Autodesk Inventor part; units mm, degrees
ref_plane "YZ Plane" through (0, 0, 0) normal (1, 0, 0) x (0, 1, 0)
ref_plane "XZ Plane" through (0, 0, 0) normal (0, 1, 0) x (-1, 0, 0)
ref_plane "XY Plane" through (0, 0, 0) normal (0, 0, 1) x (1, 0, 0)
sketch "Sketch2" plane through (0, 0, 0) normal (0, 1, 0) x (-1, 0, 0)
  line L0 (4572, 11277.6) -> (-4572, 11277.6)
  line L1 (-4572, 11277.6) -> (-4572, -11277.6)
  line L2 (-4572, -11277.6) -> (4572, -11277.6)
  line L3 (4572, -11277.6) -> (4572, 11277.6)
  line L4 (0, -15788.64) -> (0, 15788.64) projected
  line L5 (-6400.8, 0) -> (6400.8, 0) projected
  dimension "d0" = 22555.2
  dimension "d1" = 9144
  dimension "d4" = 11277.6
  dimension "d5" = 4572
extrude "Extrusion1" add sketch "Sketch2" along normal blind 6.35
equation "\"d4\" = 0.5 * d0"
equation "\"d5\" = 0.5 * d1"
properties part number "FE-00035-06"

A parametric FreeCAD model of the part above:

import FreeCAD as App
import Part
import Sketcher

V = App.Vector
Q = App.Units.Quantity

doc = App.newDocument("Part")
body = doc.addObject("PartDesign::Body", "Body")

sketch1 = body.newObject("Sketcher::SketchObject", "Sketch")
sketch1.AttachmentSupport = (doc.getObject("XZ_Plane"), [""])
sketch1.MapMode = "FlatFace"
sketch1.addGeometry([
    Part.LineSegment(V(-4572, 11278, 0), V(4572, 11278, 0)),
    Part.LineSegment(V(4572, 11278, 0), V(4572, -11278, 0)),
    Part.LineSegment(V(4572, -11278, 0), V(-4572, -11278, 0)),
    Part.LineSegment(V(-4572, -11278, 0), V(-4572, 11278, 0)),
], False)
sketch1.addConstraint([
    Sketcher.Constraint("Coincident", 0, 2, 1, 1),
    Sketcher.Constraint("Coincident", 1, 2, 2, 1),
    Sketcher.Constraint("Coincident", 2, 2, 3, 1),
    Sketcher.Constraint("Coincident", 3, 2, 0, 1),
    Sketcher.Constraint("Horizontal", 0),
    Sketcher.Constraint("Vertical", 1),
    Sketcher.Constraint("Horizontal", 2),
    Sketcher.Constraint("Vertical", 3),
    Sketcher.Constraint("Symmetric", 0, 2, 2, 2, -1, 1),
    Sketcher.Constraint("DistanceX", 0, 1, 0, 2, Q("360 in")),
    Sketcher.Constraint("DistanceY", 1, 2, 1, 1, Q("888 in")),
])
pad1 = body.newObject("PartDesign::Pad", "Pad")
pad1.Profile = sketch1
pad1.Length = Q("0.25 in")
pad1.Reversed = True

doc.recompute()
